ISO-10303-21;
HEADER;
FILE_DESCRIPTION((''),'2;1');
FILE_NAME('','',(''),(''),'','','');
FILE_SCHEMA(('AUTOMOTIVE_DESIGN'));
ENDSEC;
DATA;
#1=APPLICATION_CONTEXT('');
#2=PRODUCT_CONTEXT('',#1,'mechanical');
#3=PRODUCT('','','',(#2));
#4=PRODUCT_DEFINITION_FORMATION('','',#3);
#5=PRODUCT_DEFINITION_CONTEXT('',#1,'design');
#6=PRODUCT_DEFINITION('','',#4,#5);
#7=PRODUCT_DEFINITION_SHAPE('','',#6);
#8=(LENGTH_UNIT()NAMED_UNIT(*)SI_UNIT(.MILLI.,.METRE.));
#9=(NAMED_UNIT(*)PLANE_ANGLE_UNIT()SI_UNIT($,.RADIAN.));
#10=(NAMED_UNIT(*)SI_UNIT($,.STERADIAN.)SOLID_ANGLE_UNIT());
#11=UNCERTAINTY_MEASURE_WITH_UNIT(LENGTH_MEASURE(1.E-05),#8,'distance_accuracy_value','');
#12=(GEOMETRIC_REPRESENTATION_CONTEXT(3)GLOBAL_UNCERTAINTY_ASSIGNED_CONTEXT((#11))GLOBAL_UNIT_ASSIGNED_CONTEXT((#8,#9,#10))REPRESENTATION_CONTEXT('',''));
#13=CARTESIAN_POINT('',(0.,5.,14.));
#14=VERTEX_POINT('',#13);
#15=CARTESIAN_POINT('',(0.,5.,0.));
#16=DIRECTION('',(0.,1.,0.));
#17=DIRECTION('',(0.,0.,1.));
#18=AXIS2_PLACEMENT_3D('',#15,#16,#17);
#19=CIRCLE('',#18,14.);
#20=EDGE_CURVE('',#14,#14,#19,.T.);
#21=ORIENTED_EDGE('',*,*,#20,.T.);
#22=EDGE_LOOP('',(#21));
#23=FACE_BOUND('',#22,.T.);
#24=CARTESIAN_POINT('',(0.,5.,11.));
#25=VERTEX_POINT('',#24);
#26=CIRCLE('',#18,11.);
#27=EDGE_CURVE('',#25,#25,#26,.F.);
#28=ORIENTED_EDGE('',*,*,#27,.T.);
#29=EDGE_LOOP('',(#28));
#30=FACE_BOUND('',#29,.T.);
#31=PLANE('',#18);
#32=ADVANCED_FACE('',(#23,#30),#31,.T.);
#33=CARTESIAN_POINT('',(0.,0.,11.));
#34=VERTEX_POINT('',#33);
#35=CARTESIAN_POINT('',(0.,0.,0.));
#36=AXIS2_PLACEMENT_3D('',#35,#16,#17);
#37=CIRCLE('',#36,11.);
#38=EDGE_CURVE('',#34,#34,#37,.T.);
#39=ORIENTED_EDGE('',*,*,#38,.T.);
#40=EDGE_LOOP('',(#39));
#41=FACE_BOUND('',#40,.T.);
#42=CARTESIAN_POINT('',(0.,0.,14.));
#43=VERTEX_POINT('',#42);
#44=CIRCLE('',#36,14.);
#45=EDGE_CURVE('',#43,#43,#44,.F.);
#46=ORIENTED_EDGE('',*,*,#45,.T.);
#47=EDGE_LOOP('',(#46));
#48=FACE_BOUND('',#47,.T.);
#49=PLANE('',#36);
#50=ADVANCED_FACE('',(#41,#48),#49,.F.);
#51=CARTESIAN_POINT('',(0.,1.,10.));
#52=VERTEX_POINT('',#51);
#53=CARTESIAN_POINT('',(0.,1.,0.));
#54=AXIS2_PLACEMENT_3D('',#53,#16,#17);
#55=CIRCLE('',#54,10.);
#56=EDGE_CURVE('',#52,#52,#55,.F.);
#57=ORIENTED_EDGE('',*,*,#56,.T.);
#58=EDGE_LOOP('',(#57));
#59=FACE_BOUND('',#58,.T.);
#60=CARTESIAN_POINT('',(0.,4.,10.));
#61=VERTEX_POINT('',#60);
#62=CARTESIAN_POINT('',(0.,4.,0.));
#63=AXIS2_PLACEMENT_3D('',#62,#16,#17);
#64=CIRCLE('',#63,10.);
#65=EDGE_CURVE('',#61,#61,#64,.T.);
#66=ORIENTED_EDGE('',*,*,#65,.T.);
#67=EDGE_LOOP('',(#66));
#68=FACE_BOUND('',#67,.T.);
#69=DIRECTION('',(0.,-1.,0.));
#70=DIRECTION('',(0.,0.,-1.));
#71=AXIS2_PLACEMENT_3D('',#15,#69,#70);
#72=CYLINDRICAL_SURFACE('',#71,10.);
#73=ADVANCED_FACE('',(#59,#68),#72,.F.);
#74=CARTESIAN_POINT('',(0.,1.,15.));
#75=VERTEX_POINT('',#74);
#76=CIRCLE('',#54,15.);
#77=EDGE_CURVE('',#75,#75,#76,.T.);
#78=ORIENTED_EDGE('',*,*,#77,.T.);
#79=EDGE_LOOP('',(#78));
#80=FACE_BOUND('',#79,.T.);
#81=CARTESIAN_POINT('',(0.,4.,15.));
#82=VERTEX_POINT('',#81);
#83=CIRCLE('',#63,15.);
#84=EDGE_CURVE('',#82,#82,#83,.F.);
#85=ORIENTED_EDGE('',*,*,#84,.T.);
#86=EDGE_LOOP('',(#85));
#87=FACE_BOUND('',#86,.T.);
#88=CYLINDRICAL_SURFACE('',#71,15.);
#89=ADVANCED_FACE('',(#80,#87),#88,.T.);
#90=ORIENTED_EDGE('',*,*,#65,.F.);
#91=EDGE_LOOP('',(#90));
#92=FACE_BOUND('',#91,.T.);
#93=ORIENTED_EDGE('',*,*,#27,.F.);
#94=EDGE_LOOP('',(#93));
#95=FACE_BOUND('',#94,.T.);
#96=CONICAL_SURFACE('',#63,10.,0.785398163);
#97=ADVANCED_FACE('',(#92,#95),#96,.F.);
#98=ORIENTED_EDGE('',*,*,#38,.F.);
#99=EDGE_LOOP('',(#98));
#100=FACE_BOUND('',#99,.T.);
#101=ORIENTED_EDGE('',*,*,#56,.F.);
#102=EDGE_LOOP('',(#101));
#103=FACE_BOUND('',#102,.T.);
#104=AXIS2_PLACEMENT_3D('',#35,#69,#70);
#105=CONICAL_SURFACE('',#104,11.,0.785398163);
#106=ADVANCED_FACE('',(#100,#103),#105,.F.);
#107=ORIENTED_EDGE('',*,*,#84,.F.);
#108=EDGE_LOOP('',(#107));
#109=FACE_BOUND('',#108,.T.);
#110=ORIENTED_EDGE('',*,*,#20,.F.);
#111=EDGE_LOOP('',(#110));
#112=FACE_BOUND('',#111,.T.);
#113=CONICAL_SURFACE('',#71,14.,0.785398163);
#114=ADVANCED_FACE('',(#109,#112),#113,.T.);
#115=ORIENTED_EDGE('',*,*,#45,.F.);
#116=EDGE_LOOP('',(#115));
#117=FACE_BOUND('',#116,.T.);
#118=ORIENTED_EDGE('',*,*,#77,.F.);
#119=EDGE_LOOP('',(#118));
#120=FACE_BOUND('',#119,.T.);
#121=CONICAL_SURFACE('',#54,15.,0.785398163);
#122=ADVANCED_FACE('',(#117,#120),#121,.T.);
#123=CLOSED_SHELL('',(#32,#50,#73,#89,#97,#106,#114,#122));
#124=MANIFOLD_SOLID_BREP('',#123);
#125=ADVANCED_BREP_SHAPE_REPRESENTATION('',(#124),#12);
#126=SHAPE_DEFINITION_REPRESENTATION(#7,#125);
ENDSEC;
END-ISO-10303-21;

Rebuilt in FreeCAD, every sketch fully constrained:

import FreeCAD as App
import Part
import Sketcher

V = App.Vector


def edges_at(feature, points):
    """Names of the edges that pass closest to the given points."""
    edges = feature.Shape.Edges
    near = lambda p: min(range(len(edges)), key=lambda i: edges[i].distToShape(Part.Vertex(*p))[0])
    return sorted({f"Edge{near(p) + 1}" for p in points})

doc = App.newDocument("Part")
body = doc.addObject("PartDesign::Body", "Body")

# Sketch on XZ plane
sketch1 = body.newObject("Sketcher::SketchObject", "Sketch")
sketch1.AttachmentSupport = (doc.getObject("XZ_Plane"), [""])
sketch1.MapMode = "FlatFace"
sketch1.addGeometry(Part.Circle(V(0, 0, 0), V(0, 0, 1), 15), False)
sketch1.addGeometry(Part.Circle(V(0, 0, 0), V(0, 0, 1), 10), False)
sketch1.addConstraint(Sketcher.Constraint("Coincident", 0, 3, -1, 1))
sketch1.addConstraint(Sketcher.Constraint("Coincident", 1, 3, -1, 1))
sketch1.addConstraint(Sketcher.Constraint("Diameter", 0, 30.0))
sketch1.addConstraint(Sketcher.Constraint("Diameter", 1, 20.0))
pad1 = body.newObject("PartDesign::Pad", "Pad")
pad1.Profile = sketch1
pad1.Length = 5
pad1.Reversed = True
doc.recompute()

chamfer = body.newObject("PartDesign::Chamfer", "Chamfer")
chamfer.Base = (pad1, edges_at(pad1, [
    (-15, 0, 0),
    (-10, 0, 0),
    (-15, 5, 0),
    (-10, 5, 0),
]))
chamfer.Size = 1

doc.recompute()
